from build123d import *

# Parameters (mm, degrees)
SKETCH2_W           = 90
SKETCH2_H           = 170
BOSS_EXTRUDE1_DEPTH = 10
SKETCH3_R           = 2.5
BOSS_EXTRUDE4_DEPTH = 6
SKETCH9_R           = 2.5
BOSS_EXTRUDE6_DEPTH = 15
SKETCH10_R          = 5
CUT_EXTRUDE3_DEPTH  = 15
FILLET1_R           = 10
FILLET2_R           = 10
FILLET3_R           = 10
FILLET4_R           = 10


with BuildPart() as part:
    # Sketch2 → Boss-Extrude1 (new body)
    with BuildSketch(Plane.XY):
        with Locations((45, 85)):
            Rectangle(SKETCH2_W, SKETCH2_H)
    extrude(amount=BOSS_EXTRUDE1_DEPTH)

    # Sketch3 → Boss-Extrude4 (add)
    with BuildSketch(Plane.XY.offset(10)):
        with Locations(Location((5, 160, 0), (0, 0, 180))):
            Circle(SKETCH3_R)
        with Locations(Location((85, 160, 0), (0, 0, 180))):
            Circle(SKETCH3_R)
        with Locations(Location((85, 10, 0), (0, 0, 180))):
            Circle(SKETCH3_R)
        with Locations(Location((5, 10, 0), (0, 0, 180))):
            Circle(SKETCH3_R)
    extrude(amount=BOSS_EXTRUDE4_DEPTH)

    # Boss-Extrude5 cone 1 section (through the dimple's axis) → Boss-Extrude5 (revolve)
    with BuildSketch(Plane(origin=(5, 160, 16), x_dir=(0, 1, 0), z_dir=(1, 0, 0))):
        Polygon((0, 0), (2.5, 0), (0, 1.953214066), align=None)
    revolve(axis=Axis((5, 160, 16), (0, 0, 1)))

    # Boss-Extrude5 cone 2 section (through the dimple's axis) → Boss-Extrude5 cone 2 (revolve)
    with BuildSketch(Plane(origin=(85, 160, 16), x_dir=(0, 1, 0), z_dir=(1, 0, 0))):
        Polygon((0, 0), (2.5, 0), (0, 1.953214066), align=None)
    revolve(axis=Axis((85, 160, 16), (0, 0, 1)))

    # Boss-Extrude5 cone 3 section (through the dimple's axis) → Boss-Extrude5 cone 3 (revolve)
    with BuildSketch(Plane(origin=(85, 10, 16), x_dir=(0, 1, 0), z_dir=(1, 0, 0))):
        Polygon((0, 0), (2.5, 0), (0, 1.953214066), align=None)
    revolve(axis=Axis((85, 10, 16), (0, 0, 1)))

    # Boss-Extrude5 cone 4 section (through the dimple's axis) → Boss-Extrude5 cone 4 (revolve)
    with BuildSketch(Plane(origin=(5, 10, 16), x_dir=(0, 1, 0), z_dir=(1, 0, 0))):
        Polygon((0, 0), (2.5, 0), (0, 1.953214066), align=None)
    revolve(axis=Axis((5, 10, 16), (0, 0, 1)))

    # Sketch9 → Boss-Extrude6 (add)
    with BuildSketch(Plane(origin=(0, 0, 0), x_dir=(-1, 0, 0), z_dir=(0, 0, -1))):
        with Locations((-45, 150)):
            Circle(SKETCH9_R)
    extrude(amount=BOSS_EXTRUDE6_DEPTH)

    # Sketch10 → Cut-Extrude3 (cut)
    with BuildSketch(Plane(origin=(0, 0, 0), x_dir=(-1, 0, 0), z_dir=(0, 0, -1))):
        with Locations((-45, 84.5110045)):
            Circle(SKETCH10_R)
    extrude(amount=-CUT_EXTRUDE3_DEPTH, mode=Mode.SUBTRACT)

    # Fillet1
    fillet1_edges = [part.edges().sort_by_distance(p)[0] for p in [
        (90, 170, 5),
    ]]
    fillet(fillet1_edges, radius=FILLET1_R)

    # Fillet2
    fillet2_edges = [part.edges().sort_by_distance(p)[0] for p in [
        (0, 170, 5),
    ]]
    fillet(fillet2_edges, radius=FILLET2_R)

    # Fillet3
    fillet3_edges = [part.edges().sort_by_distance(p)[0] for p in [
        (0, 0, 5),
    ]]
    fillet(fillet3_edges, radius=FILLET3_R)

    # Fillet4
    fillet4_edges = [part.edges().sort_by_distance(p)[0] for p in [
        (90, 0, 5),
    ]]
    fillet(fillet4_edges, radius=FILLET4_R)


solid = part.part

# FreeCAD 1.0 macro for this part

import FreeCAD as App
import Part
import Sketcher
Q = App.Units.Quantity


def edges_at(feature, points):
    """Names of the edges that pass closest to the given points."""
    edges = feature.Shape.Edges
    near = lambda p: min(range(len(edges)), key=lambda i: edges[i].distToShape(Part.Vertex(*p))[0])
    return sorted({f"Edge{near(p) + 1}" for p in points})

doc = App.newDocument("Part")
body = doc.addObject("PartDesign::Body", "Body")

# Sketch on XY plane
sketch1 = body.newObject("Sketcher::SketchObject", "Sketch")
sketch1.AttachmentSupport = (doc.getObject("XY_Plane"), [""])
sketch1.MapMode = "FlatFace"
sketch1.addGeometry(Part.LineSegment(App.Vector(0, 170, 0), App.Vector(0, 0, 0)), False)
sketch1.addGeometry(Part.LineSegment(App.Vector(0, 0, 0), App.Vector(90, 0, 0)), False)
sketch1.addGeometry(Part.LineSegment(App.Vector(90, 0, 0), App.Vector(90, 170, 0)), False)
sketch1.addGeometry(Part.LineSegment(App.Vector(90, 170, 0), App.Vector(0, 170, 0)), False)
sketch1.addConstraint(Sketcher.Constraint("Coincident", 0, 2, 1, 1))
sketch1.addConstraint(Sketcher.Constraint("Coincident", 1, 2, 2, 1))
sketch1.addConstraint(Sketcher.Constraint("Coincident", 2, 2, 3, 1))
sketch1.addConstraint(Sketcher.Constraint("Coincident", 3, 2, 0, 1))
sketch1.addConstraint(Sketcher.Constraint("Vertical", 0))
sketch1.addConstraint(Sketcher.Constraint("Horizontal", 1))
sketch1.addConstraint(Sketcher.Constraint("Vertical", 2))
sketch1.addConstraint(Sketcher.Constraint("Horizontal", 3))
sketch1.addConstraint(Sketcher.Constraint("Coincident", 0, 2, -1, 1))
sketch1.addConstraint(Sketcher.Constraint("DistanceX", 1, 1, 1, 2, 90.0))
sketch1.addConstraint(Sketcher.Constraint("DistanceY", 0, 2, 0, 1, 170.0))
pad1 = body.newObject("PartDesign::Pad", "Pad")
pad1.Profile = sketch1
pad1.Length = 10

# Sketch on XY plane
sketch2 = body.newObject("Sketcher::SketchObject", "Sketch001")
sketch2.AttachmentSupport = (doc.getObject("XY_Plane"), [""])
sketch2.MapMode = "FlatFace"
sketch2.AttachmentOffset = App.Placement(App.Vector(0, 0, 10), App.Rotation())
sketch2.addGeometry(Part.Circle(App.Vector(5, 160, 0), App.Vector(0, 0, 1), 2.5), False)
sketch2.addGeometry(Part.Circle(App.Vector(85, 160, 0), App.Vector(0, 0, 1), 2.5), False)
sketch2.addGeometry(Part.Circle(App.Vector(85, 10, 0), App.Vector(0, 0, 1), 2.5), False)
sketch2.addGeometry(Part.Circle(App.Vector(5, 10, 0), App.Vector(0, 0, 1), 2.5), False)
sketch2.addConstraint(Sketcher.Constraint("Equal", 0, 1))
sketch2.addConstraint(Sketcher.Constraint("Equal", 1, 2))
sketch2.addConstraint(Sketcher.Constraint("Equal", 2, 3))
sketch2.addConstraint(Sketcher.Constraint("Horizontal", 0, 3, 1, 3))
sketch2.addConstraint(Sketcher.Constraint("Horizontal", 2, 3, 3, 3))
sketch2.addConstraint(Sketcher.Constraint("Vertical", 1, 3, 2, 3))
sketch2.addConstraint(Sketcher.Constraint("Vertical", 0, 3, 3, 3))
sketch2.addConstraint(Sketcher.Constraint("Diameter", 0, 5.0))
sketch2.addConstraint(Sketcher.Constraint("DistanceX", -1, 1, 0, 3, 5.0))
sketch2.addConstraint(Sketcher.Constraint("DistanceY", -1, 1, 0, 3, 160.0))
sketch2.addConstraint(Sketcher.Constraint("DistanceX", -1, 1, 1, 3, 85.0))
sketch2.addConstraint(Sketcher.Constraint("DistanceY", -1, 1, 2, 3, 10.0))
pad2 = body.newObject("PartDesign::Pad", "Pad001")
pad2.Profile = sketch2
pad2.Length = 6

# Sketch on YZ plane
sketch3 = body.newObject("Sketcher::SketchObject", "Sketch002")
sketch3.AttachmentSupport = (doc.getObject("YZ_Plane"), [""])
sketch3.MapMode = "FlatFace"
sketch3.AttachmentOffset = App.Placement(App.Vector(0, 0, 5), App.Rotation())
sketch3.addGeometry(Part.LineSegment(App.Vector(160, 16, 0), App.Vector(162.5, 16, 0)), False)
sketch3.addGeometry(Part.LineSegment(App.Vector(162.5, 16, 0), App.Vector(160, 17.953214, 0)), False)
sketch3.addGeometry(Part.LineSegment(App.Vector(160, 17.953214, 0), App.Vector(160, 16, 0)), False)
sketch3.addGeometry(Part.LineSegment(App.Vector(160, 16, 0), App.Vector(160, 17.953214, 0)), True)  # axis
sketch3.addConstraint(Sketcher.Constraint("Coincident", 0, 2, 1, 1))
sketch3.addConstraint(Sketcher.Constraint("Coincident", 1, 2, 2, 1))
sketch3.addConstraint(Sketcher.Constraint("Coincident", 2, 2, 0, 1))
sketch3.addConstraint(Sketcher.Constraint("Horizontal", 0))
sketch3.addConstraint(Sketcher.Constraint("Vertical", 2))
sketch3.addConstraint(Sketcher.Constraint("Vertical", 3))
sketch3.addConstraint(Sketcher.Constraint("Coincident", 3, 1, 2, 2))
sketch3.addConstraint(Sketcher.Constraint("Equal", 2, 3))
sketch3.addConstraint(Sketcher.Constraint("Angle", 1, Q("142 deg")))
sketch3.addConstraint(Sketcher.Constraint("DistanceX", 0, 1, 0, 2, 2.5))
sketch3.addConstraint(Sketcher.Constraint("DistanceY", -1, 1, 0, 2, 16.0))
sketch3.addConstraint(Sketcher.Constraint("DistanceX", -1, 1, 1, 2, 160.0))
revolution = body.newObject("PartDesign::Revolution", "Revolution")
revolution.Profile = sketch3
revolution.ReferenceAxis = (sketch3, ["Axis0"])
revolution.Angle = 360

# Sketch on YZ plane
sketch4 = body.newObject("Sketcher::SketchObject", "Sketch003")
sketch4.AttachmentSupport = (doc.getObject("YZ_Plane"), [""])
sketch4.MapMode = "FlatFace"
sketch4.AttachmentOffset = App.Placement(App.Vector(0, 0, 85), App.Rotation())
sketch4.addGeometry(Part.LineSegment(App.Vector(160, 16, 0), App.Vector(162.5, 16, 0)), False)
sketch4.addGeometry(Part.LineSegment(App.Vector(162.5, 16, 0), App.Vector(160, 17.953214, 0)), False)
sketch4.addGeometry(Part.LineSegment(App.Vector(160, 17.953214, 0), App.Vector(160, 16, 0)), False)
sketch4.addGeometry(Part.LineSegment(App.Vector(160, 16, 0), App.Vector(160, 17.953214, 0)), True)  # axis
sketch4.addConstraint(Sketcher.Constraint("Coincident", 0, 2, 1, 1))
sketch4.addConstraint(Sketcher.Constraint("Coincident", 1, 2, 2, 1))
sketch4.addConstraint(Sketcher.Constraint("Coincident", 2, 2, 0, 1))
sketch4.addConstraint(Sketcher.Constraint("Horizontal", 0))
sketch4.addConstraint(Sketcher.Constraint("Vertical", 2))
sketch4.addConstraint(Sketcher.Constraint("Vertical", 3))
sketch4.addConstraint(Sketcher.Constraint("Coincident", 3, 1, 2, 2))
sketch4.addConstraint(Sketcher.Constraint("Equal", 2, 3))
sketch4.addConstraint(Sketcher.Constraint("Angle", 1, Q("142 deg")))
sketch4.addConstraint(Sketcher.Constraint("DistanceX", 0, 1, 0, 2, 2.5))
sketch4.addConstraint(Sketcher.Constraint("DistanceY", -1, 1, 0, 2, 16.0))
sketch4.addConstraint(Sketcher.Constraint("DistanceX", -1, 1, 1, 2, 160.0))
revolution2 = body.newObject("PartDesign::Revolution", "Revolution001")
revolution2.Profile = sketch4
revolution2.ReferenceAxis = (sketch4, ["Axis0"])
revolution2.Angle = 360

# Sketch on YZ plane
sketch5 = body.newObject("Sketcher::SketchObject", "Sketch004")
sketch5.AttachmentSupport = (doc.getObject("YZ_Plane"), [""])
sketch5.MapMode = "FlatFace"
sketch5.AttachmentOffset = App.Placement(App.Vector(0, 0, 85), App.Rotation())
sketch5.addGeometry(Part.LineSegment(App.Vector(10, 16, 0), App.Vector(12.5, 16, 0)), False)
sketch5.addGeometry(Part.LineSegment(App.Vector(12.5, 16, 0), App.Vector(10, 17.953214, 0)), False)
sketch5.addGeometry(Part.LineSegment(App.Vector(10, 17.953214, 0), App.Vector(10, 16, 0)), False)
sketch5.addGeometry(Part.LineSegment(App.Vector(10, 16, 0), App.Vector(10, 17.953214, 0)), True)  # axis
sketch5.addConstraint(Sketcher.Constraint("Coincident", 0, 2, 1, 1))
sketch5.addConstraint(Sketcher.Constraint("Coincident", 1, 2, 2, 1))
sketch5.addConstraint(Sketcher.Constraint("Coincident", 2, 2, 0, 1))
sketch5.addConstraint(Sketcher.Constraint("Horizontal", 0))
sketch5.addConstraint(Sketcher.Constraint("Vertical", 2))
sketch5.addConstraint(Sketcher.Constraint("Vertical", 3))
sketch5.addConstraint(Sketcher.Constraint("Coincident", 3, 1, 2, 2))
sketch5.addConstraint(Sketcher.Constraint("Equal", 2, 3))
sketch5.addConstraint(Sketcher.Constraint("Angle", 1, Q("142 deg")))
sketch5.addConstraint(Sketcher.Constraint("DistanceX", 0, 1, 0, 2, 2.5))
sketch5.addConstraint(Sketcher.Constraint("DistanceY", -1, 1, 0, 2, 16.0))
sketch5.addConstraint(Sketcher.Constraint("DistanceX", -1, 1, 1, 2, 10.0))
revolution3 = body.newObject("PartDesign::Revolution", "Revolution002")
revolution3.Profile = sketch5
revolution3.ReferenceAxis = (sketch5, ["Axis0"])
revolution3.Angle = 360

# Sketch on YZ plane
sketch6 = body.newObject("Sketcher::SketchObject", "Sketch005")
sketch6.AttachmentSupport = (doc.getObject("YZ_Plane"), [""])
sketch6.MapMode = "FlatFace"
sketch6.AttachmentOffset = App.Placement(App.Vector(0, 0, 5), App.Rotation())
sketch6.addGeometry(Part.LineSegment(App.Vector(10, 16, 0), App.Vector(12.5, 16, 0)), False)
sketch6.addGeometry(Part.LineSegment(App.Vector(12.5, 16, 0), App.Vector(10, 17.953214, 0)), False)
sketch6.addGeometry(Part.LineSegment(App.Vector(10, 17.953214, 0), App.Vector(10, 16, 0)), False)
sketch6.addGeometry(Part.LineSegment(App.Vector(10, 16, 0), App.Vector(10, 17.953214, 0)), True)  # axis
sketch6.addConstraint(Sketcher.Constraint("Coincident", 0, 2, 1, 1))
sketch6.addConstraint(Sketcher.Constraint("Coincident", 1, 2, 2, 1))
sketch6.addConstraint(Sketcher.Constraint("Coincident", 2, 2, 0, 1))
sketch6.addConstraint(Sketcher.Constraint("Horizontal", 0))
sketch6.addConstraint(Sketcher.Constraint("Vertical", 2))
sketch6.addConstraint(Sketcher.Constraint("Vertical", 3))
sketch6.addConstraint(Sketcher.Constraint("Coincident", 3, 1, 2, 2))
sketch6.addConstraint(Sketcher.Constraint("Equal", 2, 3))
sketch6.addConstraint(Sketcher.Constraint("Angle", 1, Q("142 deg")))
sketch6.addConstraint(Sketcher.Constraint("DistanceX", 0, 1, 0, 2, 2.5))
sketch6.addConstraint(Sketcher.Constraint("DistanceY", -1, 1, 0, 2, 16.0))
sketch6.addConstraint(Sketcher.Constraint("DistanceX", -1, 1, 1, 2, 10.0))
revolution4 = body.newObject("PartDesign::Revolution", "Revolution003")
revolution4.Profile = sketch6
revolution4.ReferenceAxis = (sketch6, ["Axis0"])
revolution4.Angle = 360

# Sketch on XY plane
sketch7 = body.newObject("Sketcher::SketchObject", "Sketch006")
sketch7.AttachmentSupport = (doc.getObject("XY_Plane"), [""])
sketch7.MapMode = "FlatFace"
sketch7.addGeometry(Part.Circle(App.Vector(45, 150, 0), App.Vector(0, 0, 1), 2.5), False)
sketch7.addConstraint(Sketcher.Constraint("Diameter", 0, 5.0))
sketch7.addConstraint(Sketcher.Constraint("DistanceX", -1, 1, 0, 3, 45.0))
sketch7.addConstraint(Sketcher.Constraint("DistanceY", -1, 1, 0, 3, 150.0))
pad3 = body.newObject("PartDesign::Pad", "Pad002")
pad3.Profile = sketch7
pad3.Length = 15
pad3.Reversed = True

# Sketch on XY plane
sketch8 = body.newObject("Sketcher::SketchObject", "Sketch007")
sketch8.AttachmentSupport = (doc.getObject("XY_Plane"), [""])
sketch8.MapMode = "FlatFace"
sketch8.addGeometry(Part.Circle(App.Vector(45, 84.511004, 0), App.Vector(0, 0, 1), 5), False)
sketch8.addConstraint(Sketcher.Constraint("Diameter", 0, 10.0))
sketch8.addConstraint(Sketcher.Constraint("DistanceX", -1, 1, 0, 3, 45.0))
sketch8.addConstraint(Sketcher.Constraint("DistanceY", -1, 1, 0, 3, 84.511004))
pocket1 = body.newObject("PartDesign::Pocket", "Pocket")
pocket1.Profile = sketch8
pocket1.Length = 15
pocket1.Reversed = True
doc.recompute()

fillet = body.newObject("PartDesign::Fillet", "Fillet")
fillet.Base = (pocket1, edges_at(pocket1, [(90, 170, 5)]))
fillet.Radius = 10
doc.recompute()

fillet2 = body.newObject("PartDesign::Fillet", "Fillet001")
fillet2.Base = (fillet, edges_at(fillet, [(0, 170, 5)]))
fillet2.Radius = 10
doc.recompute()

fillet3 = body.newObject("PartDesign::Fillet", "Fillet002")
fillet3.Base = (fillet2, edges_at(fillet2, [(0, 0, 5)]))
fillet3.Radius = 10
doc.recompute()

fillet4 = body.newObject("PartDesign::Fillet", "Fillet003")
fillet4.Base = (fillet3, edges_at(fillet3, [(90, 0, 5)]))
fillet4.Radius = 10

doc.recompute()
